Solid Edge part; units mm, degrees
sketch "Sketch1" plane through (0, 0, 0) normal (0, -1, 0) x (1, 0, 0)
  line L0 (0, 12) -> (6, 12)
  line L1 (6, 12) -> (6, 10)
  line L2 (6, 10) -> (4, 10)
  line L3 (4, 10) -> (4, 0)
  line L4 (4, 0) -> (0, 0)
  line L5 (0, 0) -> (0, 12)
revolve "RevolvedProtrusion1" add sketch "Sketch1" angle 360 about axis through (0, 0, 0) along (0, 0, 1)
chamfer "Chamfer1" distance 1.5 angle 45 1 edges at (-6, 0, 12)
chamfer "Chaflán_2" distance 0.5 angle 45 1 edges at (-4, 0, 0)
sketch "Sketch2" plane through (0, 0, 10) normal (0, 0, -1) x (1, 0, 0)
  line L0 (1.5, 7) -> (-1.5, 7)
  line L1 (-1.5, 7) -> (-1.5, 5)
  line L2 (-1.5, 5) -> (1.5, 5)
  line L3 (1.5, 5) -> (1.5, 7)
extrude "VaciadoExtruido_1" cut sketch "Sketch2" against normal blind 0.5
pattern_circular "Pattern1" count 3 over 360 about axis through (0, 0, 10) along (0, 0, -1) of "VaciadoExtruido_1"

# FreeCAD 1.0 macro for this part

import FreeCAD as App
import Part
import Sketcher
from FreeCAD import Vector


def edges_at(feature, points):
    """Names of the edges that pass closest to the given points."""
    edges = feature.Shape.Edges
    near = lambda p: min(range(len(edges)), key=lambda i: edges[i].distToShape(Part.Vertex(*p))[0])
    return sorted({f"Edge{near(p) + 1}" for p in points})


def add_polygon(sketch, points):
    """Adds a closed chain of lines whose ends are joined by coincident constraints."""
    first, n = sketch.GeometryCount, len(points)
    for a, b in zip(points, points[1:] + points[:1]):
        sketch.addGeometry(Part.LineSegment(App.Vector(*a, 0), App.Vector(*b, 0)), False)
    for i in range(n):
        sketch.addConstraint(Sketcher.Constraint("Coincident", first + i, 2, first + (i + 1) % n, 1))

doc = App.newDocument("Part")
body = doc.addObject("PartDesign::Body", "Body")

# Sketch on XZ plane
sketch1 = doc.addObject("Sketcher::SketchObject", "Sketch")
body.addObject(sketch1)
sketch1.AttachmentSupport = (doc.XZ_Plane, [""])
sketch1.MapMode = "FlatFace"
add_polygon(sketch1, [(6, 12), (0, 12), (0, 0), (4, 0), (4, 10), (6, 10)])  # lines 0-5
sketch1.addConstraint(Sketcher.Constraint("Horizontal", 0))
sketch1.addConstraint(Sketcher.Constraint("Vertical", 1))
sketch1.addConstraint(Sketcher.Constraint("Horizontal", 2))
sketch1.addConstraint(Sketcher.Constraint("Vertical", 3))
sketch1.addConstraint(Sketcher.Constraint("Horizontal", 4))
sketch1.addConstraint(Sketcher.Constraint("Vertical", 5))
sketch1.addConstraint(Sketcher.Constraint("Coincident", 1, 2, -1, 1))
sketch1.addConstraint(Sketcher.Constraint("Equal", 4, 5))
sketch1.addConstraint(Sketcher.Constraint("DistanceX", 0, 2, 0, 1, 6.0))
sketch1.addConstraint(Sketcher.Constraint("DistanceX", 2, 1, 2, 2, 4.0))
sketch1.addConstraint(Sketcher.Constraint("DistanceY", 1, 2, 1, 1, 12.0))
revolution = doc.addObject("PartDesign::Revolution", "Revolution")
body.addObject(revolution)
revolution.Profile = sketch1
revolution.ReferenceAxis = (sketch1, ["V_Axis"])
revolution.Angle = 360
doc.recompute()

chamfer = doc.addObject("PartDesign::Chamfer", "Chamfer")
body.addObject(chamfer)
chamfer.Base = (revolution, edges_at(revolution, [(-6, 0, 12)]))
chamfer.Size = 1.5
doc.recompute()

chamfer2 = doc.addObject("PartDesign::Chamfer", "Chamfer001")
body.addObject(chamfer2)
chamfer2.Base = (chamfer, edges_at(chamfer, [(-4, 0, 0)]))
chamfer2.Size = 0.5

# Sketch on XY plane
sketch2 = doc.addObject("Sketcher::SketchObject", "Sketch001")
body.addObject(sketch2)
sketch2.AttachmentSupport = (doc.XY_Plane, [""])
sketch2.MapMode = "FlatFace"
sketch2.AttachmentOffset = App.Placement(Vector(0, 0, 10), App.Rotation())
add_polygon(sketch2, [(1.5, -5), (1.5, -7), (-1.5, -7), (-1.5, -5)])  # lines 0-3
sketch2.addConstraint(Sketcher.Constraint("Vertical", 0))
sketch2.addConstraint(Sketcher.Constraint("Horizontal", 1))
sketch2.addConstraint(Sketcher.Constraint("Vertical", 2))
sketch2.addConstraint(Sketcher.Constraint("Horizontal", 3))
sketch2.addConstraint(Sketcher.Constraint("DistanceX", 1, 2, 1, 1, 3.0))
sketch2.addConstraint(Sketcher.Constraint("DistanceY", 0, 2, 0, 1, 2.0))
sketch2.addConstraint(Sketcher.Constraint("DistanceY", 0, 2, -1, 1, 7.0))
sketch2.addConstraint(Sketcher.Constraint("DistanceX", -1, 1, 0, 2, 1.5))
pocket1 = doc.addObject("PartDesign::Pocket", "Pocket")
body.addObject(pocket1)
pocket1.Profile = sketch2
pocket1.Length = 0.5
pocket1.Reversed = True
doc.recompute()

polarpattern = doc.addObject("PartDesign::PolarPattern", "PolarPattern")
body.addObject(polarpattern)
polarpattern.Originals = [pocket1]
polarpattern.Axis = (doc.Z_Axis, [""])
polarpattern.Angle = 360
polarpattern.Occurrences = 3
body.Tip = polarpattern

doc.recompute()
